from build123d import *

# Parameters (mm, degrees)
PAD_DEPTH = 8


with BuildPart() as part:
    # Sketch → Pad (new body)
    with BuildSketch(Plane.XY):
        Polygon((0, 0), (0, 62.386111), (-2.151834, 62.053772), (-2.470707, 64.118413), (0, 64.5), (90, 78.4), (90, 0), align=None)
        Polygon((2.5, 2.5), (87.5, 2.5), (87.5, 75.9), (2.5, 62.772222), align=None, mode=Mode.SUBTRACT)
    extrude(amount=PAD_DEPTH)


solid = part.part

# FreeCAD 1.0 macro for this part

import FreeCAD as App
import Part
import Sketcher
Q = App.Units.Quantity

doc = App.newDocument("Part")
body = doc.addObject("PartDesign::Body", "Body")

sketch1 = doc.addObject("Sketcher::SketchObject", "Sketch")
body.addObject(sketch1)
sketch1.AttachmentSupport = (doc.XY_Plane, [""])
sketch1.MapMode = "FlatFace"
sketch1.addGeometry([
    Part.LineSegment(App.Vector(0, 62.386111, 0), App.Vector(0, 0, 0)),
    Part.LineSegment(App.Vector(0, 0, 0), App.Vector(90, 0, 0)),
    Part.LineSegment(App.Vector(90, 0, 0), App.Vector(90, 78.4, 0)),
    Part.LineSegment(App.Vector(90, 78.4, 0), App.Vector(0, 64.5, 0)),
    Part.LineSegment(App.Vector(0, 64.5, 0), App.Vector(-2.470707, 64.118413, 0)),
    Part.LineSegment(App.Vector(-2.470707, 64.118413, 0), App.Vector(-2.151834, 62.053772, 0)),
    Part.LineSegment(App.Vector(-2.151834, 62.053772, 0), App.Vector(0, 62.386111, 0)),
    Part.LineSegment(App.Vector(2.5, 2.5, 0), App.Vector(2.5, 62.772222, 0)),
    Part.LineSegment(App.Vector(2.5, 62.772222, 0), App.Vector(87.5, 75.9, 0)),
    Part.LineSegment(App.Vector(87.5, 75.9, 0), App.Vector(87.5, 2.5, 0)),
    Part.LineSegment(App.Vector(87.5, 2.5, 0), App.Vector(2.5, 2.5, 0)),
], False)
sketch1.addConstraint([
    Sketcher.Constraint("Coincident", 0, 2, 1, 1),
    Sketcher.Constraint("Coincident", 1, 2, 2, 1),
    Sketcher.Constraint("Coincident", 2, 2, 3, 1),
    Sketcher.Constraint("Coincident", 3, 2, 4, 1),
    Sketcher.Constraint("Coincident", 4, 2, 5, 1),
    Sketcher.Constraint("Coincident", 5, 2, 6, 1),
    Sketcher.Constraint("Coincident", 6, 2, 0, 1),
    Sketcher.Constraint("Coincident", 7, 2, 8, 1),
    Sketcher.Constraint("Coincident", 8, 2, 9, 1),
    Sketcher.Constraint("Coincident", 9, 2, 10, 1),
    Sketcher.Constraint("Coincident", 10, 2, 7, 1),
    Sketcher.Constraint("Vertical", 0),
    Sketcher.Constraint("Horizontal", 1),
    Sketcher.Constraint("Vertical", 2),
    Sketcher.Constraint("Vertical", 7),
    Sketcher.Constraint("Vertical", 9),
    Sketcher.Constraint("Horizontal", 10),
    Sketcher.Constraint("Coincident", 0, 2, -1, 1),
    Sketcher.Constraint("PointOnObject", 3, 2, -2),
    Sketcher.Constraint("Parallel", 3, 4),
    Sketcher.Constraint("Perpendicular", 4, 5),
    Sketcher.Constraint("Perpendicular", 5, 6),
    Sketcher.Constraint("Parallel", 6, 8),
    Sketcher.Constraint("DistanceX", 1, 1, 1, 2, Q("90 mm")),
    Sketcher.Constraint("DistanceX", 10, 2, 10, 1, Q("85 mm")),
    Sketcher.Constraint("DistanceY", 2, 1, 2, 2, Q("78.4 mm")),
    Sketcher.Constraint("DistanceY", 9, 2, 9, 1, Q("73.4 mm")),
    Sketcher.Constraint("Distance", 4, Q("2.5 mm")),
    Sketcher.Constraint("DistanceY", -1, 1, 3, 2, Q("64.5 mm")),
    Sketcher.Constraint("DistanceX", -1, 1, 7, 2, Q("2.5 mm")),
    Sketcher.Constraint("DistanceY", -1, 1, 8, 2, Q("75.9 mm")),
    Sketcher.Constraint("DistanceY", 0, 2, 0, 1, Q("62.386111 mm")),
])
pad1 = doc.addObject("PartDesign::Pad", "Pad")
body.addObject(pad1)
pad1.Profile = sketch1
pad1.Length = 8

doc.recompute()
